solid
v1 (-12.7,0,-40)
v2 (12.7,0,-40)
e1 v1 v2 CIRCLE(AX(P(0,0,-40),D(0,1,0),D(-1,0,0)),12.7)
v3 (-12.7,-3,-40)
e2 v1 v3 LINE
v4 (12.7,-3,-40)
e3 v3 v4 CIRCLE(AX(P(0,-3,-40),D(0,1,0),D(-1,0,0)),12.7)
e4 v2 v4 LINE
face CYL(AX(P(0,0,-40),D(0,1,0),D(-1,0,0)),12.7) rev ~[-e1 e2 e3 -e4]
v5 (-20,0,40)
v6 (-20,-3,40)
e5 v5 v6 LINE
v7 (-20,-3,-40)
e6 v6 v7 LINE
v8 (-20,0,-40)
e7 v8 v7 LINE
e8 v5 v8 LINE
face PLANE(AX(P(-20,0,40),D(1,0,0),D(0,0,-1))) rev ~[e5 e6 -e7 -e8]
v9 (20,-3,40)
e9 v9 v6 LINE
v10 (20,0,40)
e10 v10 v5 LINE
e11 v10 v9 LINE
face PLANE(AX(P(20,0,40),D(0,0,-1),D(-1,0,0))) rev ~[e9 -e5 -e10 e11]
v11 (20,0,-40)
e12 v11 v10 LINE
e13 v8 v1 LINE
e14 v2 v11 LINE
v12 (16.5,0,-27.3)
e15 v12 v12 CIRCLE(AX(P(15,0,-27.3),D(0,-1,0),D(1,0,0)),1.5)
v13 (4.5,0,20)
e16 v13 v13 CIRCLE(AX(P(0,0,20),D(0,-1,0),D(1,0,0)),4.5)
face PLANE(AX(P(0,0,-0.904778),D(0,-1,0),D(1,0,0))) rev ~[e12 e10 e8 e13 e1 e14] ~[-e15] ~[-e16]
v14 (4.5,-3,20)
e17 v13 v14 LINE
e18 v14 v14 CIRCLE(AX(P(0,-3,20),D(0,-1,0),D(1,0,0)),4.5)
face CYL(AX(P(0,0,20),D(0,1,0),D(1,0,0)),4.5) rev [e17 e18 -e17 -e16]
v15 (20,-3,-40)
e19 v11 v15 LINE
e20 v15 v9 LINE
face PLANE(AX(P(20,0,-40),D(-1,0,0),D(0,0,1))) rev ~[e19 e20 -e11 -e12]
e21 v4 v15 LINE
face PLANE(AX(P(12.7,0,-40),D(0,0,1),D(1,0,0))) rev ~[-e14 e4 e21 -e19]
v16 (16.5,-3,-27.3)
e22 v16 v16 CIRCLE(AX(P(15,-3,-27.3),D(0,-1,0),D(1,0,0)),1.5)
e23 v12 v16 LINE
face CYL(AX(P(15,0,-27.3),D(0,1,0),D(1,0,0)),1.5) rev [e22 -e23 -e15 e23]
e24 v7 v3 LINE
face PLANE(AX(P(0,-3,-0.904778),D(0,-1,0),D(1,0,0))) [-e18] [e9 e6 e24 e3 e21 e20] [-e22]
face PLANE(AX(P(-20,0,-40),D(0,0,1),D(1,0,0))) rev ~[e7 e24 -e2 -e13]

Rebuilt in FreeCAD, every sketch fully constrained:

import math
import FreeCAD as App
import Part
import Sketcher
from FreeCAD import Vector
Q = App.Units.Quantity

doc = App.newDocument("Part")
body = doc.addObject("PartDesign::Body", "Body")

sketch1 = doc.addObject("Sketcher::SketchObject", "Sketch")
body.addObject(sketch1)
sketch1.AttachmentSupport = (doc.XZ_Plane, [""])
sketch1.MapMode = "FlatFace"
sketch1.addGeometry([
    Part.LineSegment(Vector(20, 40, 0), Vector(-20, 40, 0)),
    Part.LineSegment(Vector(-20, 40, 0), Vector(-20, -40, 0)),
    Part.LineSegment(Vector(-20, -40, 0), Vector(-12.7, -40, 0)),
    Part.ArcOfCircle(Part.Circle(Vector(0, -40, 0), Vector(0, 0, 1), 12.7), math.radians(0), math.radians(180)),
    Part.LineSegment(Vector(12.7, -40, 0), Vector(20, -40, 0)),
    Part.LineSegment(Vector(20, -40, 0), Vector(20, 40, 0)),
    Part.Circle(Vector(15, -27.3, 0), Vector(0, 0, 1), 1.5),
    Part.Circle(Vector(0, 20, 0), Vector(0, 0, 1), 4.5),
], False)
sketch1.addConstraint([
    Sketcher.Constraint("Coincident", 0, 2, 1, 1),
    Sketcher.Constraint("Coincident", 1, 2, 2, 1),
    Sketcher.Constraint("Coincident", 2, 2, 3, 2),
    Sketcher.Constraint("Coincident", 3, 1, 4, 1),
    Sketcher.Constraint("Coincident", 4, 2, 5, 1),
    Sketcher.Constraint("Coincident", 5, 2, 0, 1),
    Sketcher.Constraint("Horizontal", 0),
    Sketcher.Constraint("Vertical", 1),
    Sketcher.Constraint("Horizontal", 2),
    Sketcher.Constraint("Horizontal", 4),
    Sketcher.Constraint("Vertical", 5),
    Sketcher.Constraint("Symmetric", 0, 2, 4, 2, -1, 1),
    Sketcher.Constraint("Symmetric", 2, 2, 3, 1, -2),
    Sketcher.Constraint("PointOnObject", 7, 3, -2),
    Sketcher.Constraint("Horizontal", 3, 3, 1, 2),
    Sketcher.Constraint("Diameter", 6, Q("3 mm")),
    Sketcher.Constraint("Diameter", 7, Q("9 mm")),
    Sketcher.Constraint("Radius", 3, Q("12.7 mm")),
    Sketcher.Constraint("DistanceX", 0, 2, 0, 1, Q("40 mm")),
    Sketcher.Constraint("DistanceY", 1, 2, 1, 1, Q("80 mm")),
    Sketcher.Constraint("DistanceX", -1, 1, 6, 3, Q("15 mm")),
    Sketcher.Constraint("DistanceY", -1, 1, 7, 3, Q("20 mm")),
    Sketcher.Constraint("DistanceY", 6, 3, -1, 1, Q("27.3 mm")),
])
pad1 = doc.addObject("PartDesign::Pad", "Pad")
body.addObject(pad1)
pad1.Profile = sketch1
pad1.Length = 3

doc.recompute()
